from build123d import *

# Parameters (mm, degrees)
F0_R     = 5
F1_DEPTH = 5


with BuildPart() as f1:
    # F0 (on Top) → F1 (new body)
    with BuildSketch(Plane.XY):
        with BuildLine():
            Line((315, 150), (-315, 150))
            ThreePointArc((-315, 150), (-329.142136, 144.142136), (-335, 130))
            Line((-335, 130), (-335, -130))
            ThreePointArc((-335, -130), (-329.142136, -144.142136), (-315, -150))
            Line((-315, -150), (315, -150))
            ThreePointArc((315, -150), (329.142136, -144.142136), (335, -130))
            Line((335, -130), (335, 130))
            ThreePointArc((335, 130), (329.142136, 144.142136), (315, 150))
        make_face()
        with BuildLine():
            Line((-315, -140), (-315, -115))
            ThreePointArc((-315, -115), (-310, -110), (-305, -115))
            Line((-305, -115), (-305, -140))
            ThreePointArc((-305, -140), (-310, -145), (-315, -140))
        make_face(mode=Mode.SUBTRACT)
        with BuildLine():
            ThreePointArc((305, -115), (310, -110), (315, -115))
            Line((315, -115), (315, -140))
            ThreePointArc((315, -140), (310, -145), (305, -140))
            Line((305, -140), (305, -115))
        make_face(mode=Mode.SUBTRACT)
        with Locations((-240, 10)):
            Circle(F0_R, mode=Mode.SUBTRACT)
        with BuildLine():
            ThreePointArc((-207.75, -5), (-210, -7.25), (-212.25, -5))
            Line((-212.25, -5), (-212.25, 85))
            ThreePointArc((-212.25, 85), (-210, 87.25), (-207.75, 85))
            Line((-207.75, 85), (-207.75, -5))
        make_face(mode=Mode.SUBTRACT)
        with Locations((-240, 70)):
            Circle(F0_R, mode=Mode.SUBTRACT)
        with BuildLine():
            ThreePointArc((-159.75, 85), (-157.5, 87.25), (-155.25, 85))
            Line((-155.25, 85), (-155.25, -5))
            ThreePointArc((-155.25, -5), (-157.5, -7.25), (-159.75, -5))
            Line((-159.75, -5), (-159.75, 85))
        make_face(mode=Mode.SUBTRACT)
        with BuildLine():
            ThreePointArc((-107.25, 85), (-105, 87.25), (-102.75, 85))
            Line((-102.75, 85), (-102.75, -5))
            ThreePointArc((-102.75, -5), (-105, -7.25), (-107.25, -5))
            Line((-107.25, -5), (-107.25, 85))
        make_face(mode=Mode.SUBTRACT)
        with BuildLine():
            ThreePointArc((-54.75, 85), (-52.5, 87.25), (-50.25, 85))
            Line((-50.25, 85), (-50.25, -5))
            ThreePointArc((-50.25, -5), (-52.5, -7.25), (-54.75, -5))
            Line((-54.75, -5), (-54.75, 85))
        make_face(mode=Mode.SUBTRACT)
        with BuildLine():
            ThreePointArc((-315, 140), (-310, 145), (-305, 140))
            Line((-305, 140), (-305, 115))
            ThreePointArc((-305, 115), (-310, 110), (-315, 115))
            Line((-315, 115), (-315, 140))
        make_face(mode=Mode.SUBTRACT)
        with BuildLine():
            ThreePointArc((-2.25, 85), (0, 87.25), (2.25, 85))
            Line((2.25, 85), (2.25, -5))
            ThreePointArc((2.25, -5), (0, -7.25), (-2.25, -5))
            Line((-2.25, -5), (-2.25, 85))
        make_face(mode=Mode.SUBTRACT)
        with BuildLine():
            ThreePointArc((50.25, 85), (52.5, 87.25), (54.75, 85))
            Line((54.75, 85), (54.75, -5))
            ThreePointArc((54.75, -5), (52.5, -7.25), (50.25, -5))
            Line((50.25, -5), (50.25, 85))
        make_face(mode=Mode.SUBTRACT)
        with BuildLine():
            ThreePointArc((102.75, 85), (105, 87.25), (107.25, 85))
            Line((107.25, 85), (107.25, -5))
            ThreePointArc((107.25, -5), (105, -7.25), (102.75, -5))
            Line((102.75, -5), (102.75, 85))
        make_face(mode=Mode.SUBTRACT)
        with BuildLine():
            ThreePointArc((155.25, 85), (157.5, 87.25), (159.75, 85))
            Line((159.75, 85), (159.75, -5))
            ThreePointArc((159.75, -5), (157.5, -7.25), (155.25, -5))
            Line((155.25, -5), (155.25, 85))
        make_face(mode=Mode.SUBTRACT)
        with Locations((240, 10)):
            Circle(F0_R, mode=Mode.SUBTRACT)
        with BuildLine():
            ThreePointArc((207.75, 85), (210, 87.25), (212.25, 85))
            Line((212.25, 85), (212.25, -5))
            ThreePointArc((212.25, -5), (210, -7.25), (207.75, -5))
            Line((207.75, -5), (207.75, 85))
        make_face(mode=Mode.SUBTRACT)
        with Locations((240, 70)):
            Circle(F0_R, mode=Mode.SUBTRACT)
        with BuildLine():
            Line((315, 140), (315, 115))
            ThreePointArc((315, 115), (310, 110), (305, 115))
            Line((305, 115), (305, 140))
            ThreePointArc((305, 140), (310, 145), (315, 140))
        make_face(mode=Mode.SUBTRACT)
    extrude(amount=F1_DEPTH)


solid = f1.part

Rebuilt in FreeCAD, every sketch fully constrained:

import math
import FreeCAD as App
import Part
import Sketcher

V = App.Vector

doc = App.newDocument("Part")
body = doc.addObject("PartDesign::Body", "Body")

# Sketch on XY plane
sketch1 = doc.addObject("Sketcher::SketchObject", "Sketch")
body.addObject(sketch1)
sketch1.AttachmentSupport = (doc.XY_Plane, [""])
sketch1.MapMode = "FlatFace"
sketch1.addGeometry([
    Part.LineSegment(V(315, 150, 0), V(-315, 150, 0)),  # 0
    Part.ArcOfCircle(Part.Circle(V(-315, 130, 0), V(0, 0, 1), 20), math.radians(90), math.radians(180)),  # 1
    Part.LineSegment(V(-335, 130, 0), V(-335, -130, 0)),  # 2
    Part.ArcOfCircle(Part.Circle(V(-315, -130, 0), V(0, 0, 1), 20), math.radians(180), math.radians(270)),  # 3
    Part.LineSegment(V(-315, -150, 0), V(315, -150, 0)),  # 4
    Part.ArcOfCircle(Part.Circle(V(315, -130, 0), V(0, 0, 1), 20), math.radians(-90), math.radians(0)),  # 5
    Part.LineSegment(V(335, -130, 0), V(335, 130, 0)),  # 6
    Part.ArcOfCircle(Part.Circle(V(315, 130, 0), V(0, 0, 1), 20), math.radians(0), math.radians(90)),  # 7
    Part.ArcOfCircle(Part.Circle(V(-310, -140, 0), V(0, 0, 1), 5), math.radians(180), math.radians(360)),  # 8
    Part.LineSegment(V(-315, -140, 0), V(-315, -115, 0)),  # 9
    Part.ArcOfCircle(Part.Circle(V(-310, -115, 0), V(0, 0, 1), 5), math.radians(0), math.radians(180)),  # 10
    Part.LineSegment(V(-305, -115, 0), V(-305, -140, 0)),  # 11
    Part.LineSegment(V(305, -140, 0), V(305, -115, 0)),  # 12
    Part.ArcOfCircle(Part.Circle(V(310, -115, 0), V(0, 0, 1), 5), math.radians(0), math.radians(180)),  # 13
    Part.LineSegment(V(315, -115, 0), V(315, -140, 0)),  # 14
    Part.ArcOfCircle(Part.Circle(V(310, -140, 0), V(0, 0, 1), 5), math.radians(180), math.radians(360)),  # 15
    Part.Circle(V(-240, 10, 0), V(0, 0, 1), 5),  # 16
    Part.Circle(V(-240, 70, 0), V(0, 0, 1), 5),  # 17
    Part.LineSegment(V(-207.8, 85, 0), V(-207.8, -5, 0)),  # 18
    Part.ArcOfCircle(Part.Circle(V(-210, -5, 0), V(0, 0, 1), 2.2), math.radians(180), math.radians(360)),  # 19
    Part.LineSegment(V(-212.2, -5, 0), V(-212.2, 85, 0)),  # 20
    Part.ArcOfCircle(Part.Circle(V(-210, 85, 0), V(0, 0, 1), 2.2), math.radians(0), math.radians(180)),  # 21
    Part.LineSegment(V(-159.8, -5, 0), V(-159.8, 85, 0)),  # 22
    Part.ArcOfCircle(Part.Circle(V(-157.5, 85, 0), V(0, 0, 1), 2.2), math.radians(0), math.radians(180)),  # 23
    Part.LineSegment(V(-155.2, 85, 0), V(-155.2, -5, 0)),  # 24
    Part.ArcOfCircle(Part.Circle(V(-157.5, -5, 0), V(0, 0, 1), 2.2), math.radians(180), math.radians(360)),  # 25
    Part.LineSegment(V(-107.2, -5, 0), V(-107.2, 85, 0)),  # 26
    Part.ArcOfCircle(Part.Circle(V(-105, 85, 0), V(0, 0, 1), 2.2), math.radians(0), math.radians(180)),  # 27
    Part.LineSegment(V(-102.8, 85, 0), V(-102.8, -5, 0)),  # 28
    Part.ArcOfCircle(Part.Circle(V(-105, -5, 0), V(0, 0, 1), 2.2), math.radians(180), math.radians(360)),  # 29
    Part.LineSegment(V(-54.8, -5, 0), V(-54.8, 85, 0)),  # 30
    Part.ArcOfCircle(Part.Circle(V(-52.5, 85, 0), V(0, 0, 1), 2.2), math.radians(0), math.radians(180)),  # 31
    Part.LineSegment(V(-50.2, 85, 0), V(-50.2, -5, 0)),  # 32
    Part.ArcOfCircle(Part.Circle(V(-52.5, -5, 0), V(0, 0, 1), 2.2), math.radians(180), math.radians(360)),  # 33
    Part.LineSegment(V(-315, 115, 0), V(-315, 140, 0)),  # 34
    Part.ArcOfCircle(Part.Circle(V(-310, 140, 0), V(0, 0, 1), 5), math.radians(0), math.radians(180)),  # 35
    Part.LineSegment(V(-305, 140, 0), V(-305, 115, 0)),  # 36
    Part.ArcOfCircle(Part.Circle(V(-310, 115, 0), V(0, 0, 1), 5), math.radians(180), math.radians(360)),  # 37
    Part.LineSegment(V(-2.2, -5, 0), V(-2.2, 85, 0)),  # 38
    Part.ArcOfCircle(Part.Circle(V(0, 85, 0), V(0, 0, 1), 2.2), math.radians(0), math.radians(180)),  # 39
    Part.LineSegment(V(2.2, 85, 0), V(2.2, -5, 0)),  # 40
    Part.ArcOfCircle(Part.Circle(V(0, -5, 0), V(0, 0, 1), 2.2), math.radians(180), math.radians(360)),  # 41
    Part.LineSegment(V(50.2, -5, 0), V(50.2, 85, 0)),  # 42
    Part.ArcOfCircle(Part.Circle(V(52.5, 85, 0), V(0, 0, 1), 2.2), math.radians(0), math.radians(180)),  # 43
    Part.LineSegment(V(54.8, 85, 0), V(54.8, -5, 0)),  # 44
    Part.ArcOfCircle(Part.Circle(V(52.5, -5, 0), V(0, 0, 1), 2.2), math.radians(180), math.radians(360)),  # 45
    Part.LineSegment(V(102.8, -5, 0), V(102.8, 85, 0)),  # 46
    Part.ArcOfCircle(Part.Circle(V(105, 85, 0), V(0, 0, 1), 2.2), math.radians(0), math.radians(180)),  # 47
    Part.LineSegment(V(107.2, 85, 0), V(107.2, -5, 0)),  # 48
    Part.ArcOfCircle(Part.Circle(V(105, -5, 0), V(0, 0, 1), 2.2), math.radians(180), math.radians(360)),  # 49
    Part.Circle(V(240, 10, 0), V(0, 0, 1), 5),  # 50
    Part.LineSegment(V(155.2, -5, 0), V(155.2, 85, 0)),  # 51
    Part.ArcOfCircle(Part.Circle(V(157.5, 85, 0), V(0, 0, 1), 2.2), math.radians(0), math.radians(180)),  # 52
    Part.LineSegment(V(159.8, 85, 0), V(159.8, -5, 0)),  # 53
    Part.ArcOfCircle(Part.Circle(V(157.5, -5, 0), V(0, 0, 1), 2.2), math.radians(180), math.radians(360)),  # 54
    Part.LineSegment(V(207.8, -5, 0), V(207.8, 85, 0)),  # 55
    Part.ArcOfCircle(Part.Circle(V(210, 85, 0), V(0, 0, 1), 2.2), math.radians(0), math.radians(180)),  # 56
    Part.LineSegment(V(212.2, 85, 0), V(212.2, -5, 0)),  # 57
    Part.ArcOfCircle(Part.Circle(V(210, -5, 0), V(0, 0, 1), 2.2), math.radians(180), math.radians(360)),  # 58
    Part.Circle(V(240, 70, 0), V(0, 0, 1), 5),  # 59
    Part.ArcOfCircle(Part.Circle(V(310, 140, 0), V(0, 0, 1), 5), math.radians(0), math.radians(180)),  # 60
    Part.LineSegment(V(315, 140, 0), V(315, 115, 0)),  # 61
    Part.ArcOfCircle(Part.Circle(V(310, 115, 0), V(0, 0, 1), 5), math.radians(180), math.radians(360)),  # 62
    Part.LineSegment(V(305, 115, 0), V(305, 140, 0)),  # 63
], False)
sketch1.addConstraint([
    Sketcher.Constraint("Tangent", 0, 2, 1, 1),
    Sketcher.Constraint("Tangent", 1, 2, 2, 1),
    Sketcher.Constraint("Tangent", 2, 2, 3, 1),
    Sketcher.Constraint("Tangent", 3, 2, 4, 1),
    Sketcher.Constraint("Tangent", 4, 2, 5, 1),
    Sketcher.Constraint("Tangent", 5, 2, 6, 1),
    Sketcher.Constraint("Tangent", 6, 2, 7, 1),
    Sketcher.Constraint("Tangent", 7, 2, 0, 1),
    Sketcher.Constraint("Tangent", 8, 1, 9, 1),
    Sketcher.Constraint("Tangent", 9, 2, 10, 2),
    Sketcher.Constraint("Tangent", 10, 1, 11, 1),
    Sketcher.Constraint("Tangent", 11, 2, 8, 2),
    Sketcher.Constraint("Tangent", 12, 2, 13, 2),
    Sketcher.Constraint("Tangent", 13, 1, 14, 1),
    Sketcher.Constraint("Tangent", 14, 2, 15, 2),
    Sketcher.Constraint("Tangent", 15, 1, 12, 1),
    Sketcher.Constraint("Tangent", 18, 2, 19, 2),
    Sketcher.Constraint("Tangent", 19, 1, 20, 1),
    Sketcher.Constraint("Tangent", 20, 2, 21, 2),
    Sketcher.Constraint("Tangent", 21, 1, 18, 1),
    Sketcher.Constraint("Tangent", 22, 2, 23, 2),
    Sketcher.Constraint("Tangent", 23, 1, 24, 1),
    Sketcher.Constraint("Tangent", 24, 2, 25, 2),
    Sketcher.Constraint("Tangent", 25, 1, 22, 1),
    Sketcher.Constraint("Tangent", 26, 2, 27, 2),
    Sketcher.Constraint("Tangent", 27, 1, 28, 1),
    Sketcher.Constraint("Tangent", 28, 2, 29, 2),
    Sketcher.Constraint("Tangent", 29, 1, 26, 1),
    Sketcher.Constraint("Tangent", 30, 2, 31, 2),
    Sketcher.Constraint("Tangent", 31, 1, 32, 1),
    Sketcher.Constraint("Tangent", 32, 2, 33, 2),
    Sketcher.Constraint("Tangent", 33, 1, 30, 1),
    Sketcher.Constraint("Tangent", 34, 2, 35, 2),
    Sketcher.Constraint("Tangent", 35, 1, 36, 1),
    Sketcher.Constraint("Tangent", 36, 2, 37, 2),
    Sketcher.Constraint("Tangent", 37, 1, 34, 1),
    Sketcher.Constraint("Tangent", 38, 2, 39, 2),
    Sketcher.Constraint("Tangent", 39, 1, 40, 1),
    Sketcher.Constraint("Tangent", 40, 2, 41, 2),
    Sketcher.Constraint("Tangent", 41, 1, 38, 1),
    Sketcher.Constraint("Tangent", 42, 2, 43, 2),
    Sketcher.Constraint("Tangent", 43, 1, 44, 1),
    Sketcher.Constraint("Tangent", 44, 2, 45, 2),
    Sketcher.Constraint("Tangent", 45, 1, 42, 1),
    Sketcher.Constraint("Tangent", 46, 2, 47, 2),
    Sketcher.Constraint("Tangent", 47, 1, 48, 1),
    Sketcher.Constraint("Tangent", 48, 2, 49, 2),
    Sketcher.Constraint("Tangent", 49, 1, 46, 1),
    Sketcher.Constraint("Tangent", 51, 2, 52, 2),
    Sketcher.Constraint("Tangent", 52, 1, 53, 1),
    Sketcher.Constraint("Tangent", 53, 2, 54, 2),
    Sketcher.Constraint("Tangent", 54, 1, 51, 1),
    Sketcher.Constraint("Tangent", 55, 2, 56, 2),
    Sketcher.Constraint("Tangent", 56, 1, 57, 1),
    Sketcher.Constraint("Tangent", 57, 2, 58, 2),
    Sketcher.Constraint("Tangent", 58, 1, 55, 1),
    Sketcher.Constraint("Tangent", 60, 1, 61, 1),
    Sketcher.Constraint("Tangent", 61, 2, 62, 2),
    Sketcher.Constraint("Tangent", 62, 1, 63, 1),
    Sketcher.Constraint("Tangent", 63, 2, 60, 2),
    Sketcher.Constraint("Horizontal", 0),
    Sketcher.Constraint("Vertical", 2),
    Sketcher.Constraint("Horizontal", 4),
    Sketcher.Constraint("Vertical", 6),
    Sketcher.Constraint("Vertical", 9),
    Sketcher.Constraint("Vertical", 11),
    Sketcher.Constraint("Vertical", 12),
    Sketcher.Constraint("Vertical", 14),
    Sketcher.Constraint("Vertical", 18),
    Sketcher.Constraint("Vertical", 20),
    Sketcher.Constraint("Vertical", 22),
    Sketcher.Constraint("Vertical", 24),
    Sketcher.Constraint("Vertical", 26),
    Sketcher.Constraint("Vertical", 28),
    Sketcher.Constraint("Vertical", 30),
    Sketcher.Constraint("Vertical", 32),
    Sketcher.Constraint("Vertical", 34),
    Sketcher.Constraint("Vertical", 36),
    Sketcher.Constraint("Vertical", 38),
    Sketcher.Constraint("Vertical", 40),
    Sketcher.Constraint("Vertical", 42),
    Sketcher.Constraint("Vertical", 44),
    Sketcher.Constraint("Vertical", 46),
    Sketcher.Constraint("Vertical", 48),
    Sketcher.Constraint("Vertical", 51),
    Sketcher.Constraint("Vertical", 53),
    Sketcher.Constraint("Vertical", 55),
    Sketcher.Constraint("Vertical", 57),
    Sketcher.Constraint("Vertical", 61),
    Sketcher.Constraint("Vertical", 63),
    Sketcher.Constraint("Equal", 1, 3),
    Sketcher.Constraint("Equal", 3, 5),
    Sketcher.Constraint("Equal", 5, 7),
    Sketcher.Constraint("Equal", 10, 13),
    Sketcher.Constraint("Equal", 15, 16),
    Sketcher.Constraint("Equal", 16, 17),
    Sketcher.Constraint("Equal", 21, 23),
    Sketcher.Constraint("Equal", 25, 27),
    Sketcher.Constraint("Equal", 29, 31),
    Sketcher.Constraint("Equal", 17, 35),
    Sketcher.Constraint("Equal", 33, 39),
    Sketcher.Constraint("Equal", 41, 43),
    Sketcher.Constraint("Equal", 45, 47),
    Sketcher.Constraint("Equal", 37, 50),
    Sketcher.Constraint("Equal", 49, 52),
    Sketcher.Constraint("Equal", 54, 56),
    Sketcher.Constraint("Equal", 50, 59),
    Sketcher.Constraint("Equal", 59, 60),
    Sketcher.Constraint("Symmetric", 1, 3, 5, 3, -1, 1),
    Sketcher.Constraint("Symmetric", 15, 3, 35, 3, -1, 1),
    Sketcher.Constraint("Symmetric", 8, 3, 60, 3, -1, 1),
    Sketcher.Constraint("Symmetric", 10, 3, 13, 3, -2),
    Sketcher.Constraint("Symmetric", 31, 3, 43, 3, -2),
    Sketcher.Constraint("Symmetric", 27, 3, 47, 3, -2),
    Sketcher.Constraint("Symmetric", 16, 3, 50, 3, -2),
    Sketcher.Constraint("Symmetric", 23, 3, 52, 3, -2),
    Sketcher.Constraint("Symmetric", 21, 3, 56, 3, -2),
    Sketcher.Constraint("Symmetric", 17, 3, 59, 3, -2),
    Sketcher.Constraint("PointOnObject", 39, 3, -2),
    Sketcher.Constraint("Horizontal", 8, 3, 15, 3),
    Sketcher.Constraint("Horizontal", 21, 3, 23, 3),
    Sketcher.Constraint("Horizontal", 19, 3, 25, 3),
    Sketcher.Constraint("Horizontal", 23, 3, 27, 3),
    Sketcher.Constraint("Horizontal", 25, 3, 29, 3),
    Sketcher.Constraint("Horizontal", 27, 3, 31, 3),
    Sketcher.Constraint("Horizontal", 29, 3, 33, 3),
    Sketcher.Constraint("Horizontal", 31, 3, 39, 3),
    Sketcher.Constraint("Horizontal", 33, 3, 41, 3),
    Sketcher.Constraint("Horizontal", 41, 3, 45, 3),
    Sketcher.Constraint("Horizontal", 45, 3, 49, 3),
    Sketcher.Constraint("Horizontal", 49, 3, 54, 3),
    Sketcher.Constraint("Horizontal", 54, 3, 58, 3),
    Sketcher.Constraint("Horizontal", 37, 3, 62, 3),
    Sketcher.Constraint("Vertical", 16, 3, 17, 3),
    Sketcher.Constraint("Vertical", 3, 2, 8, 1),
    Sketcher.Constraint("Equal", 14, 34),
    Sketcher.Constraint("Diameter", 16, 10.0),
    Sketcher.Constraint("Radius", 1, 19.999999),
    Sketcher.Constraint("DistanceX", 0, 2, 0, 1, 630.0),
    Sketcher.Constraint("DistanceY", 2, 2, 2, 1, 260.0),
    Sketcher.Constraint("DistanceY", 9, 1, 9, 2, 25.0),
    Sketcher.Constraint("DistanceY", 18, 2, 18, 1, 90.0),
    Sketcher.Constraint("Radius", 19, 2.25),
    Sketcher.Constraint("DistanceY", 8, 3, -1, 1, 140.0),
    Sketcher.Constraint("DistanceX", 16, 3, -1, 1, 240.0),
    Sketcher.Constraint("DistanceY", -1, 1, 16, 3, 10.0),
    Sketcher.Constraint("DistanceY", -1, 1, 17, 3, 70.0),
    Sketcher.Constraint("DistanceX", 19, 3, -1, 1, 210.0),
    Sketcher.Constraint("DistanceY", 19, 3, -1, 1, 5.0),
    Sketcher.Constraint("DistanceX", 27, 3, -1, 1, 105.0),
    Sketcher.Constraint("DistanceX", 23, 3, -1, 1, 157.5),
    Sketcher.Constraint("DistanceX", 31, 3, -1, 1, 52.5),
])
pad1 = doc.addObject("PartDesign::Pad", "Pad")
body.addObject(pad1)
pad1.Profile = sketch1
pad1.Length = 5

doc.recompute()
